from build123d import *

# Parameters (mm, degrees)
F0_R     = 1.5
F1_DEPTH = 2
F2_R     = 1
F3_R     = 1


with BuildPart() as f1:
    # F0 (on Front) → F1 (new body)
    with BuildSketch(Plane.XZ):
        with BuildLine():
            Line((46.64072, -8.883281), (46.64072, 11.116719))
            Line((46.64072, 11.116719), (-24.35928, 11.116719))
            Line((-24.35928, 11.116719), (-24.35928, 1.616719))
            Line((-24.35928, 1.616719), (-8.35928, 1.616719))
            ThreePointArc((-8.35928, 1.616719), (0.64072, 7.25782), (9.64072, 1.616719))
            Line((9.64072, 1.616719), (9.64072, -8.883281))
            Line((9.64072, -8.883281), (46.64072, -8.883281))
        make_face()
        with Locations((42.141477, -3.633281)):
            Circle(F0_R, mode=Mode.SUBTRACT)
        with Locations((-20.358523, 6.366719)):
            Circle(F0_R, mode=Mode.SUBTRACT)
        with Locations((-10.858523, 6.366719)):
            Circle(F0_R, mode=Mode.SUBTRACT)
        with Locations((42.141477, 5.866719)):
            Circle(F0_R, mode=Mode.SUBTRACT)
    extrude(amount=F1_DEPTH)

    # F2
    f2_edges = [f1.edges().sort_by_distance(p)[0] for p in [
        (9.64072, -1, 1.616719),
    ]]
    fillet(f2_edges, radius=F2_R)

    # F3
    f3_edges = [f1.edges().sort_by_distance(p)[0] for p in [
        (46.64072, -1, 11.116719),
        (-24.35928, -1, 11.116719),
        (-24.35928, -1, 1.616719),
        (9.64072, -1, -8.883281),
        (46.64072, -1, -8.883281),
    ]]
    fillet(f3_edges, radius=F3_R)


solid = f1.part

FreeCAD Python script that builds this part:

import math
import FreeCAD as App
import Part
import Sketcher
from FreeCAD import Vector
Q = App.Units.Quantity


def edges_at(feature, points):
    """Names of the edges that pass closest to the given points."""
    edges = feature.Shape.Edges
    near = lambda p: min(range(len(edges)), key=lambda i: edges[i].distToShape(Part.Vertex(*p))[0])
    return sorted({f"Edge{near(p) + 1}" for p in points})

doc = App.newDocument("Part")
body = doc.addObject("PartDesign::Body", "Body")

# Sketch on XZ plane
sketch1 = body.newObject("Sketcher::SketchObject", "Sketch")
sketch1.AttachmentSupport = (doc.getObject("XZ_Plane"), [""])
sketch1.MapMode = "FlatFace"
sketch1.addGeometry(Part.LineSegment(Vector(46.6, -8.9, 0), Vector(46.6, 11.1, 0)), False)
sketch1.addGeometry(Part.LineSegment(Vector(46.6, 11.1, 0), Vector(-24.4, 11.1, 0)), False)
sketch1.addGeometry(Part.LineSegment(Vector(-24.4, 11.1, 0), Vector(-24.4, 1.6, 0)), False)
sketch1.addGeometry(Part.LineSegment(Vector(-24.4, 1.6, 0), Vector(-8.4, 1.6, 0)), False)
sketch1.addGeometry(Part.ArcOfCircle(Part.Circle(Vector(0.6, -2.7, 0), Vector(0, 0, 1), 10), math.radians(26), math.radians(154)), False)
sketch1.addGeometry(Part.LineSegment(Vector(9.6, 1.6, 0), Vector(9.6, -8.9, 0)), False)
sketch1.addGeometry(Part.LineSegment(Vector(9.6, -8.9, 0), Vector(46.6, -8.9, 0)), False)
sketch1.addGeometry(Part.Circle(Vector(42.1, -3.6, 0), Vector(0, 0, 1), 1.5), False)
sketch1.addGeometry(Part.Circle(Vector(-20.4, 6.4, 0), Vector(0, 0, 1), 1.5), False)
sketch1.addGeometry(Part.Circle(Vector(-10.9, 6.4, 0), Vector(0, 0, 1), 1.5), False)
sketch1.addGeometry(Part.Circle(Vector(42.1, 5.9, 0), Vector(0, 0, 1), 1.5), False)
sketch1.addConstraint(Sketcher.Constraint("Coincident", 0, 2, 1, 1))
sketch1.addConstraint(Sketcher.Constraint("Coincident", 1, 2, 2, 1))
sketch1.addConstraint(Sketcher.Constraint("Coincident", 2, 2, 3, 1))
sketch1.addConstraint(Sketcher.Constraint("Coincident", 3, 2, 4, 2))
sketch1.addConstraint(Sketcher.Constraint("Coincident", 4, 1, 5, 1))
sketch1.addConstraint(Sketcher.Constraint("Coincident", 5, 2, 6, 1))
sketch1.addConstraint(Sketcher.Constraint("Coincident", 6, 2, 0, 1))
sketch1.addConstraint(Sketcher.Constraint("Vertical", 0))
sketch1.addConstraint(Sketcher.Constraint("Horizontal", 1))
sketch1.addConstraint(Sketcher.Constraint("Vertical", 2))
sketch1.addConstraint(Sketcher.Constraint("Horizontal", 3))
sketch1.addConstraint(Sketcher.Constraint("Vertical", 5))
sketch1.addConstraint(Sketcher.Constraint("Horizontal", 6))
sketch1.addConstraint(Sketcher.Constraint("Equal", 7, 8))
sketch1.addConstraint(Sketcher.Constraint("Equal", 8, 9))
sketch1.addConstraint(Sketcher.Constraint("Equal", 9, 10))
sketch1.addConstraint(Sketcher.Constraint("Horizontal", 8, 3, 9, 3))
sketch1.addConstraint(Sketcher.Constraint("Horizontal", 3, 2, 4, 1))
sketch1.addConstraint(Sketcher.Constraint("Vertical", 7, 3, 10, 3))
sketch1.addConstraint(Sketcher.Constraint("Diameter", 7, Q("3 mm")))
sketch1.addConstraint(Sketcher.Constraint("Radius", 4, Q("10 mm")))
sketch1.addConstraint(Sketcher.Constraint("DistanceX", 1, 2, 1, 1, Q("71 mm")))
sketch1.addConstraint(Sketcher.Constraint("DistanceX", 3, 1, 3, 2, Q("16 mm")))
sketch1.addConstraint(Sketcher.Constraint("DistanceX", 6, 1, 6, 2, Q("37 mm")))
sketch1.addConstraint(Sketcher.Constraint("DistanceY", 0, 1, 0, 2, Q("20 mm")))
sketch1.addConstraint(Sketcher.Constraint("DistanceY", 2, 2, 2, 1, Q("9.5 mm")))
sketch1.addConstraint(Sketcher.Constraint("DistanceY", 7, 3, 8, 3, Q("10 mm")))
sketch1.addConstraint(Sketcher.Constraint("DistanceX", 9, 3, 7, 3, Q("53 mm")))
sketch1.addConstraint(Sketcher.Constraint("DistanceX", 8, 3, 7, 3, Q("62.5 mm")))
sketch1.addConstraint(Sketcher.Constraint("DistanceY", 7, 3, 10, 3, Q("9.5 mm")))
sketch1.addConstraint(Sketcher.Constraint("DistanceY", 10, 3, 0, 2, Q("5.25 mm")))
sketch1.addConstraint(Sketcher.Constraint("DistanceX", -1, 1, 4, 3, Q("0.64072 mm")))
sketch1.addConstraint(Sketcher.Constraint("DistanceY", 4, 3, -1, 1, Q("2.74218 mm")))
sketch1.addConstraint(Sketcher.Constraint("DistanceX", -1, 1, 7, 3, Q("42.141477 mm")))
pad1 = body.newObject("PartDesign::Pad", "Pad")
pad1.Profile = sketch1
pad1.Length = 2
doc.recompute()

fillet = body.newObject("PartDesign::Fillet", "Fillet")
fillet.Base = (pad1, edges_at(pad1, [(9.641, -1, 1.617)]))
fillet.Radius = 1
doc.recompute()

fillet2 = body.newObject("PartDesign::Fillet", "Fillet001")
fillet2.Base = (fillet, edges_at(fillet, [
    (46.641, -1, 11.117),
    (-24.359, -1, 11.117),
    (-24.359, -1, 1.617),
    (9.641, -1, -8.883),
    (46.641, -1, -8.883),
]))
fillet2.Radius = 1

doc.recompute()
